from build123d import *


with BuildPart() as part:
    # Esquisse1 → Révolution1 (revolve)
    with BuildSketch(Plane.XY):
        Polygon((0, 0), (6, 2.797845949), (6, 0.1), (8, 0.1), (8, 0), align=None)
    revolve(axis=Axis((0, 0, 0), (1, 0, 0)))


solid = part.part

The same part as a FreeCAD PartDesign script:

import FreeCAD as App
import Part
import Sketcher
from FreeCAD import Vector
Q = App.Units.Quantity

doc = App.newDocument("Part")
body = doc.addObject("PartDesign::Body", "Body")

# Sketch on XY plane
sketch1 = body.newObject("Sketcher::SketchObject", "Sketch")
sketch1.AttachmentSupport = (doc.getObject("XY_Plane"), [""])
sketch1.MapMode = "FlatFace"
sketch1.addGeometry(Part.LineSegment(Vector(6, 2.8, 0), Vector(0, 0, 0)), False)
sketch1.addGeometry(Part.LineSegment(Vector(0, 0, 0), Vector(8, 0, 0)), False)
sketch1.addGeometry(Part.LineSegment(Vector(8, 0, 0), Vector(8, 0.1, 0)), False)
sketch1.addGeometry(Part.LineSegment(Vector(8, 0.1, 0), Vector(6, 0.1, 0)), False)
sketch1.addGeometry(Part.LineSegment(Vector(6, 0.1, 0), Vector(6, 2.8, 0)), False)
sketch1.addConstraint(Sketcher.Constraint("Coincident", 0, 2, 1, 1))
sketch1.addConstraint(Sketcher.Constraint("Coincident", 1, 2, 2, 1))
sketch1.addConstraint(Sketcher.Constraint("Coincident", 2, 2, 3, 1))
sketch1.addConstraint(Sketcher.Constraint("Coincident", 3, 2, 4, 1))
sketch1.addConstraint(Sketcher.Constraint("Coincident", 4, 2, 0, 1))
sketch1.addConstraint(Sketcher.Constraint("Horizontal", 1))
sketch1.addConstraint(Sketcher.Constraint("Vertical", 2))
sketch1.addConstraint(Sketcher.Constraint("Horizontal", 3))
sketch1.addConstraint(Sketcher.Constraint("Vertical", 4))
sketch1.addConstraint(Sketcher.Constraint("Coincident", 0, 2, -1, 1))
sketch1.addConstraint(Sketcher.Constraint("DistanceX", 1, 1, 1, 2, Q("8 mm")))
sketch1.addConstraint(Sketcher.Constraint("DistanceX", 3, 2, 3, 1, Q("2 mm")))
sketch1.addConstraint(Sketcher.Constraint("Angle", 0, Q("-155 deg")))
sketch1.addConstraint(Sketcher.Constraint("DistanceY", 2, 1, 2, 2, Q("0.1 mm")))
revolution = body.newObject("PartDesign::Revolution", "Revolution")
revolution.Profile = sketch1
revolution.ReferenceAxis = (sketch1, ["H_Axis"])
revolution.Angle = 360

doc.recompute()
